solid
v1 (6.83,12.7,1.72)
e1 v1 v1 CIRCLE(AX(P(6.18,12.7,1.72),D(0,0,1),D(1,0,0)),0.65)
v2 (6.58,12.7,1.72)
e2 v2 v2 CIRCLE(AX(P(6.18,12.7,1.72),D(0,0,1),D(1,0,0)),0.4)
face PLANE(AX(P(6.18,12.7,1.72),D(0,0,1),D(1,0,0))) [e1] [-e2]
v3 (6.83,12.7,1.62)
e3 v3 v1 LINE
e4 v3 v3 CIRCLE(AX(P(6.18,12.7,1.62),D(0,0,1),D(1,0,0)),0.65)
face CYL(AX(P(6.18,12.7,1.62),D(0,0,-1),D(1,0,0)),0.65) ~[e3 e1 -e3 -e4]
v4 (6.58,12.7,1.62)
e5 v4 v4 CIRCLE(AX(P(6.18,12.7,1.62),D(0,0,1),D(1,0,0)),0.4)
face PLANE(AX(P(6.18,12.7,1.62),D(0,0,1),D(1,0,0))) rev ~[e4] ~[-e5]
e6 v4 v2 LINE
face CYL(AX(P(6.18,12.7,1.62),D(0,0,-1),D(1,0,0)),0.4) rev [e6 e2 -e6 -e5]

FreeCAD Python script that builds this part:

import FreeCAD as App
import Part
import Sketcher

doc = App.newDocument("Part")
params = doc.addObject("Spreadsheet::Sheet", "Params")
for row, (alias, value) in enumerate([
    ("sketch1_diameter", "0.8 mm"),
    ("pad1_length", "0.1 mm"),
    ("sketch2_diameter", "1.3 mm"),
    ("pad2_length", "0.1 mm"),
], start=1):
    params.set(f"A{row}", alias)
    params.set(f"B{row}", "=" + value)
    params.setAlias(f"B{row}", alias)

body = doc.addObject("PartDesign::Body", "Body")

# Sketch on XY plane
sketch1 = body.newObject("Sketcher::SketchObject", "Sketch")
sketch1.AttachmentSupport = (doc.getObject("XY_Plane"), [""])
sketch1.MapMode = "FlatFace"
sketch1.AttachmentOffset = App.Placement(App.Vector(0, 0, 1.62), App.Rotation())
sketch1.addGeometry(Part.Circle(App.Vector(0, 0, 0), App.Vector(0, 0, 1), 0.4), False)
sketch1.addConstraint(Sketcher.Constraint("Coincident", 0, 3, -1, 1))
sketch1.addConstraint(Sketcher.Constraint("Diameter", 0, 0.8))
sketch1.setExpression("Constraints[1]", "Params.sketch1_diameter")
pad1 = body.newObject("PartDesign::Pad", "Pad")
pad1.Profile = sketch1
pad1.setExpression("Length", "Params.pad1_length")
body2 = doc.addObject("PartDesign::Body", "Body001")

# Sketch on XY plane
sketch2 = body2.newObject("Sketcher::SketchObject", "Sketch001")
sketch2.AttachmentSupport = (doc.getObject("XY_Plane001"), [""])
sketch2.MapMode = "FlatFace"
sketch2.AttachmentOffset = App.Placement(App.Vector(0, 0, 1.62), App.Rotation())
sketch2.addGeometry(Part.Circle(App.Vector(0, 0, 0), App.Vector(0, 0, 1), 0.65), False)
sketch2.addConstraint(Sketcher.Constraint("Coincident", 0, 3, -1, 1))
sketch2.addConstraint(Sketcher.Constraint("Diameter", 0, 1.3))
sketch2.setExpression("Constraints[1]", "Params.sketch2_diameter")
pad2 = body2.newObject("PartDesign::Pad", "Pad001")
pad2.Profile = sketch2
pad2.setExpression("Length", "Params.pad2_length")
doc.recompute()

boolean = body2.newObject("PartDesign::Boolean", "Boolean")
boolean.Type = "Cut"
boolean.addObjects([body])
body3 = doc.addObject("PartDesign::Body", "Body002")
doc.recompute()

body2.Placement = App.Placement(App.Vector(6.18, 12.7, 0), App.Rotation(App.Vector(0, 0, 1), 0))
boolean2 = body3.newObject("PartDesign::Boolean", "Boolean001")
boolean2.Type = "Fuse"
boolean2.addObjects([body2])

doc.recompute()
